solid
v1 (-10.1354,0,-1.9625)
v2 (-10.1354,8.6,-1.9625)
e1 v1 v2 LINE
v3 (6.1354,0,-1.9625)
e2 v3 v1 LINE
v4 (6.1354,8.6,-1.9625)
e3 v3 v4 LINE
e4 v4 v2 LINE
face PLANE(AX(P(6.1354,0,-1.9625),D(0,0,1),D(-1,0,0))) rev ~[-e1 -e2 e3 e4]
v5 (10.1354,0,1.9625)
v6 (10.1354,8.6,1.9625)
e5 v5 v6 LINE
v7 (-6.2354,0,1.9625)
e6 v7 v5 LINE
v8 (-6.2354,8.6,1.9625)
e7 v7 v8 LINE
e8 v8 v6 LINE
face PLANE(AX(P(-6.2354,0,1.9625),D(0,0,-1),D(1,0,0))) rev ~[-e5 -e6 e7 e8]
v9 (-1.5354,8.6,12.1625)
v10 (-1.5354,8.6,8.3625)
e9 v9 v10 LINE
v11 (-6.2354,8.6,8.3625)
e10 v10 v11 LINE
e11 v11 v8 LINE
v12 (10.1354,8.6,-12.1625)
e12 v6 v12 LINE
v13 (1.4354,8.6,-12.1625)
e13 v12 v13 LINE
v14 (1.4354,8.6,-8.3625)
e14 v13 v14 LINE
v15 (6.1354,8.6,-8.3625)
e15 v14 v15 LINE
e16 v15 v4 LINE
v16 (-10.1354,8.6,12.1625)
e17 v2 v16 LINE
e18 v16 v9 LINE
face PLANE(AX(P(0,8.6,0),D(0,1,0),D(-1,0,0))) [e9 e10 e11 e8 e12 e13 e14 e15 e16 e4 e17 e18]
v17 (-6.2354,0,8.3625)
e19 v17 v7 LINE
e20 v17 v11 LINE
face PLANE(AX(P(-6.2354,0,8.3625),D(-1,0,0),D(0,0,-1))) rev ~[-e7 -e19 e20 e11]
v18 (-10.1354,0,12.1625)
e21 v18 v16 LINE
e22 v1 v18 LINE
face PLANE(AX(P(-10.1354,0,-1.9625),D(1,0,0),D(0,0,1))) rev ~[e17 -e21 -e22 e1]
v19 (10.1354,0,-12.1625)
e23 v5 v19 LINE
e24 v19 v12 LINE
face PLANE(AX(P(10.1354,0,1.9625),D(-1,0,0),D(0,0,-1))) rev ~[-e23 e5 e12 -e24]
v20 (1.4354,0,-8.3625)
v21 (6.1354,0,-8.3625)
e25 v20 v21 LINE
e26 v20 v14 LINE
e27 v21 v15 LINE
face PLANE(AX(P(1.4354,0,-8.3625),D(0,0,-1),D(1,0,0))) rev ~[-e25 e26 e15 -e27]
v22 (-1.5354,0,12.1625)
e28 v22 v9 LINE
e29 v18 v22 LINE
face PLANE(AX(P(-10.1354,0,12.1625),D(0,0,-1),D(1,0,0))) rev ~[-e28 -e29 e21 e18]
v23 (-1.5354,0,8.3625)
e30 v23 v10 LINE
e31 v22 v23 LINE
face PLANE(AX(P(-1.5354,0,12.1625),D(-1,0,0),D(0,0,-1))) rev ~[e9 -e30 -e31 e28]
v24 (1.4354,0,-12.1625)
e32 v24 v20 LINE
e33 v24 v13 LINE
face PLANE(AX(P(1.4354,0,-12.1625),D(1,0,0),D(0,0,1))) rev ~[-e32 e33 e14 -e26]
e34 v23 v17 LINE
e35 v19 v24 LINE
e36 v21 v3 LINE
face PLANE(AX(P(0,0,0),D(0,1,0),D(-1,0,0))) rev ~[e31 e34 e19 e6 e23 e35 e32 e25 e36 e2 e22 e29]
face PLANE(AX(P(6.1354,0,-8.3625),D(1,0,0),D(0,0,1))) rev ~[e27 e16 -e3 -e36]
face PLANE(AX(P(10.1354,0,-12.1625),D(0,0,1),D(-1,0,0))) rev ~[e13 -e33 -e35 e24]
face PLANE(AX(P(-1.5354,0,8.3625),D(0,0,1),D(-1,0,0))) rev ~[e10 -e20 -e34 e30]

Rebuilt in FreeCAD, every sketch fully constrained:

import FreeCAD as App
import Part
import Sketcher
Q = App.Units.Quantity

doc = App.newDocument("Part")
params = doc.addObject("Spreadsheet::Sheet", "Params")
for row, (alias, value) in enumerate([
    ("sketch1_width", "4.7 mm"),
    ("sketch1_height", "3.8 mm"),
    ("sketch1_height2", "6.4 mm"),
    ("sketch1_width2", "8.7 mm"),
    ("pad1_length", "8.6 mm"),
], start=1):
    params.set(f"A{row}", alias)
    params.set(f"B{row}", "=" + value)
    params.setAlias(f"B{row}", alias)

body = doc.addObject("PartDesign::Body", "Body")

# Sketch on XZ plane
sketch1 = body.newObject("Sketcher::SketchObject", "Sketch")
sketch1.AttachmentSupport = (doc.getObject("XZ_Plane"), [""])
sketch1.MapMode = "FlatFace"
sketch1.addGeometry([
    Part.LineSegment(App.Vector(10.1, 2, 0), App.Vector(10.1, -12.2, 0)),  # 0
    Part.LineSegment(App.Vector(10.1, -12.2, 0), App.Vector(1.4, -12.2, 0)),  # 1
    Part.LineSegment(App.Vector(1.4, -12.2, 0), App.Vector(1.4, -8.4, 0)),  # 2
    Part.LineSegment(App.Vector(1.4, -8.4, 0), App.Vector(6.1, -8.4, 0)),  # 3
    Part.LineSegment(App.Vector(6.1, -8.4, 0), App.Vector(6.1, -2, 0)),  # 4
    Part.LineSegment(App.Vector(6.1, -2, 0), App.Vector(-10.1, -2, 0)),  # 5
    Part.LineSegment(App.Vector(-10.1, -2, 0), App.Vector(-10.1, 12.2, 0)),  # 6
    Part.LineSegment(App.Vector(-10.1, 12.2, 0), App.Vector(-1.5, 12.2, 0)),  # 7
    Part.LineSegment(App.Vector(-1.5, 12.2, 0), App.Vector(-1.5, 8.4, 0)),  # 8
    Part.LineSegment(App.Vector(-1.5, 8.4, 0), App.Vector(-6.2, 8.4, 0)),  # 9
    Part.LineSegment(App.Vector(-6.2, 8.4, 0), App.Vector(-6.2, 2, 0)),  # 10
    Part.LineSegment(App.Vector(-6.2, 2, 0), App.Vector(10.1, 2, 0)),  # 11
], False)
sketch1.addConstraint([
    Sketcher.Constraint("Coincident", 0, 2, 1, 1),
    Sketcher.Constraint("Coincident", 1, 2, 2, 1),
    Sketcher.Constraint("Coincident", 2, 2, 3, 1),
    Sketcher.Constraint("Coincident", 3, 2, 4, 1),
    Sketcher.Constraint("Coincident", 4, 2, 5, 1),
    Sketcher.Constraint("Coincident", 5, 2, 6, 1),
    Sketcher.Constraint("Coincident", 6, 2, 7, 1),
    Sketcher.Constraint("Coincident", 7, 2, 8, 1),
    Sketcher.Constraint("Coincident", 8, 2, 9, 1),
    Sketcher.Constraint("Coincident", 9, 2, 10, 1),
    Sketcher.Constraint("Coincident", 10, 2, 11, 1),
    Sketcher.Constraint("Coincident", 11, 2, 0, 1),
    Sketcher.Constraint("Vertical", 0),
    Sketcher.Constraint("Horizontal", 1),
    Sketcher.Constraint("Vertical", 2),
    Sketcher.Constraint("Horizontal", 3),
    Sketcher.Constraint("Vertical", 4),
    Sketcher.Constraint("Horizontal", 5),
    Sketcher.Constraint("Vertical", 6),
    Sketcher.Constraint("Horizontal", 7),
    Sketcher.Constraint("Vertical", 8),
    Sketcher.Constraint("Horizontal", 9),
    Sketcher.Constraint("Vertical", 10),
    Sketcher.Constraint("Horizontal", 11),
    Sketcher.Constraint("Symmetric", 0, 2, 6, 2, -1, 1),
    Sketcher.Constraint("Equal", 3, 9),
    Sketcher.Constraint("Equal", 0, 6),
    Sketcher.Constraint("Equal", 2, 8),
    Sketcher.Constraint("DistanceX", 3, 1, 3, 2, Q("4.7 mm")),
    Sketcher.Constraint("DistanceY", 2, 1, 2, 2, Q("3.8 mm")),
    Sketcher.Constraint("DistanceY", 4, 1, 4, 2, Q("6.4 mm")),
    Sketcher.Constraint("DistanceX", 6, 2, 9, 2, Q("3.9 mm")),
    Sketcher.Constraint("DistanceX", 1, 2, 1, 1, Q("8.7 mm")),
    Sketcher.Constraint("DistanceY", 5, 2, 10, 2, Q("3.925 mm")),
    Sketcher.Constraint("DistanceX", 5, 2, 5, 1, Q("16.2708 mm")),
])
sketch1.setExpression("Constraints[28]", "Params.sketch1_width")
sketch1.setExpression("Constraints[29]", "Params.sketch1_height")
sketch1.setExpression("Constraints[30]", "Params.sketch1_height2")
sketch1.setExpression("Constraints[32]", "Params.sketch1_width2")
pad1 = body.newObject("PartDesign::Pad", "Pad")
pad1.Profile = sketch1
pad1.setExpression("Length", "Params.pad1_length")
pad1.Reversed = True

doc.recompute()
